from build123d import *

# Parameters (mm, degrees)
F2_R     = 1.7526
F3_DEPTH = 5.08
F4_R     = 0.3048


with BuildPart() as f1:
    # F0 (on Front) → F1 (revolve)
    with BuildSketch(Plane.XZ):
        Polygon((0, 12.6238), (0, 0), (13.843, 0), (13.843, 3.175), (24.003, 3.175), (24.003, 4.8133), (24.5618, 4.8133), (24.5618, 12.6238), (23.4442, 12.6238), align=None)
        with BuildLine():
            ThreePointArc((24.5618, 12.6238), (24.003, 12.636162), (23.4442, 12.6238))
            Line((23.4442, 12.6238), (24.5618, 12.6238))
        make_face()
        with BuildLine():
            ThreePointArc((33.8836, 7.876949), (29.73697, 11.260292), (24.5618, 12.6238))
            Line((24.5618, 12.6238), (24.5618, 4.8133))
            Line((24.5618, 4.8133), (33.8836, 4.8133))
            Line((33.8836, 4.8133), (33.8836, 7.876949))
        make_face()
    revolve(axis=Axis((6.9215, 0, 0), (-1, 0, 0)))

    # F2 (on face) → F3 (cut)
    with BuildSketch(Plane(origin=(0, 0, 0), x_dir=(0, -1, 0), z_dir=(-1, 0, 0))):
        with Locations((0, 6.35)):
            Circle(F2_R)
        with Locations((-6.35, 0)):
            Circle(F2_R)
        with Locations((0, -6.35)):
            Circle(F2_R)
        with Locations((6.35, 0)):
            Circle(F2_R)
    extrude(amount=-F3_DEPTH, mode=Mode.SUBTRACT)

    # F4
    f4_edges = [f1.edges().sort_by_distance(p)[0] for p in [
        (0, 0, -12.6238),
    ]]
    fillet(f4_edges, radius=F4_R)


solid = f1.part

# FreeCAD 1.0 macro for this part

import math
import FreeCAD as App
import Part
import Sketcher
from FreeCAD import Vector
Q = App.Units.Quantity


def edges_at(feature, points):
    """Names of the edges that pass closest to the given points."""
    edges = feature.Shape.Edges
    near = lambda p: min(range(len(edges)), key=lambda i: edges[i].distToShape(Part.Vertex(*p))[0])
    return sorted({f"Edge{near(p) + 1}" for p in points})

doc = App.newDocument("Part")
body = doc.addObject("PartDesign::Body", "Body")

# Sketch on XZ plane
sketch1 = body.newObject("Sketcher::SketchObject", "Sketch")
sketch1.AttachmentSupport = (doc.getObject("XZ_Plane"), [""])
sketch1.MapMode = "FlatFace"
sketch1.addGeometry([
    Part.LineSegment(Vector(0, 12.6238, 0), Vector(0, 0, 0)),  # 0
    Part.LineSegment(Vector(0, 0, 0), Vector(13.843, 0, 0)),  # 1
    Part.LineSegment(Vector(13.843, 0, 0), Vector(13.843, 3.175, 0)),  # 2
    Part.LineSegment(Vector(13.843, 3.175, 0), Vector(24.003, 3.175, 0)),  # 3
    Part.LineSegment(Vector(24.003, 3.175, 0), Vector(24.003, 4.8133, 0)),  # 4
    Part.LineSegment(Vector(24.003, 4.8133, 0), Vector(33.8836, 4.8133, 0)),  # 5
    Part.LineSegment(Vector(33.8836, 4.8133, 0), Vector(33.8836, 7.876949, 0)),  # 6
    Part.ArcOfCircle(Part.Circle(Vector(24.003001, 0.000002, 0), Vector(0, 0, 1), 12.63616), math.radians(38.562325), math.radians(87.465427)),  # 7
    Part.ArcOfCircle(Part.Circle(Vector(24.003, 0.000251, 0), Vector(0, 0, 1), 12.635911), math.radians(87.465373), math.radians(92.534627)),  # 8
    Part.LineSegment(Vector(23.4442, 12.6238, 0), Vector(0, 12.6238, 0)),  # 9
], False)
sketch1.addConstraint([
    Sketcher.Constraint("Coincident", 0, 2, 1, 1),
    Sketcher.Constraint("Coincident", 1, 2, 2, 1),
    Sketcher.Constraint("Coincident", 2, 2, 3, 1),
    Sketcher.Constraint("Coincident", 3, 2, 4, 1),
    Sketcher.Constraint("Coincident", 4, 2, 5, 1),
    Sketcher.Constraint("Coincident", 5, 2, 6, 1),
    Sketcher.Constraint("Coincident", 6, 2, 7, 1),
    Sketcher.Constraint("Coincident", 7, 2, 8, 1),
    Sketcher.Constraint("Coincident", 8, 2, 9, 1),
    Sketcher.Constraint("Coincident", 9, 2, 0, 1),
    Sketcher.Constraint("Vertical", 0),
    Sketcher.Constraint("Horizontal", 1),
    Sketcher.Constraint("Vertical", 2),
    Sketcher.Constraint("Horizontal", 3),
    Sketcher.Constraint("Vertical", 4),
    Sketcher.Constraint("Horizontal", 5),
    Sketcher.Constraint("Vertical", 6),
    Sketcher.Constraint("Horizontal", 9),
    Sketcher.Constraint("Coincident", 0, 2, -1, 1),
    Sketcher.Constraint("DistanceX", 3, 1, 3, 2, Q("0.4 in")),
    Sketcher.Constraint("DistanceX", 1, 2, 8, 3, Q("0.4 in")),
    Sketcher.Constraint("DistanceX", 1, 2, 7, 3, Q("0.4 in")),
    Sketcher.Constraint("DistanceX", 1, 1, 1, 2, Q("0.545 in")),
    Sketcher.Constraint("DistanceX", 5, 1, 5, 2, Q("0.389 in")),
    Sketcher.Constraint("DistanceX", 9, 2, 9, 1, Q("0.923 in")),
    Sketcher.Constraint("DistanceY", 0, 2, 0, 1, Q("0.497 in")),
    Sketcher.Constraint("DistanceY", 2, 1, 2, 2, Q("0.125 in")),
    Sketcher.Constraint("DistanceY", 4, 1, 4, 2, Q("0.0645 in")),
    Sketcher.Constraint("DistanceX", -1, 1, 7, 2, Q("0.967 in")),
    Sketcher.Constraint("Radius", 7, 12.63616),
    Sketcher.Constraint("Radius", 8, 12.635911),
])
revolution = body.newObject("PartDesign::Revolution", "Revolution")
revolution.Profile = sketch1
revolution.ReferenceAxis = (sketch1, ["H_Axis"])
revolution.Angle = 360

# Sketch on YZ plane
sketch2 = body.newObject("Sketcher::SketchObject", "Sketch001")
sketch2.AttachmentSupport = (doc.getObject("YZ_Plane"), [""])
sketch2.MapMode = "FlatFace"
sketch2.addGeometry([
    Part.Circle(Vector(0, 6.3, 0), Vector(0, 0, 1), 1.8),
    Part.Circle(Vector(6.3, 0, 0), Vector(0, 0, 1), 1.8),
    Part.Circle(Vector(0, -6.3, 0), Vector(0, 0, 1), 1.8),
    Part.Circle(Vector(-6.3, 0, 0), Vector(0, 0, 1), 1.8),
], False)
sketch2.addConstraint([
    Sketcher.Constraint("Equal", 0, 1),
    Sketcher.Constraint("Equal", 1, 2),
    Sketcher.Constraint("Equal", 2, 3),
    Sketcher.Constraint("Symmetric", 0, 3, 2, 3, -1, 1),
    Sketcher.Constraint("Symmetric", 1, 3, 3, 3, -1, 1),
    Sketcher.Constraint("PointOnObject", 0, 3, -2),
    Sketcher.Constraint("PointOnObject", 1, 3, -1),
    Sketcher.Constraint("Diameter", 0, Q("0.138 in")),
    Sketcher.Constraint("DistanceY", 2, 3, 0, 3, Q("0.5 in")),
    Sketcher.Constraint("DistanceX", 3, 3, 1, 3, Q("0.5 in")),
])
pocket1 = body.newObject("PartDesign::Pocket", "Pocket")
pocket1.Profile = sketch2
pocket1.Length = Q("0.2 in")
pocket1.Reversed = True
doc.recompute()

fillet = body.newObject("PartDesign::Fillet", "Fillet")
fillet.Base = (pocket1, edges_at(pocket1, [(0, 0, -12.624)]))
fillet.Radius = Q("0.012 in")

doc.recompute()
